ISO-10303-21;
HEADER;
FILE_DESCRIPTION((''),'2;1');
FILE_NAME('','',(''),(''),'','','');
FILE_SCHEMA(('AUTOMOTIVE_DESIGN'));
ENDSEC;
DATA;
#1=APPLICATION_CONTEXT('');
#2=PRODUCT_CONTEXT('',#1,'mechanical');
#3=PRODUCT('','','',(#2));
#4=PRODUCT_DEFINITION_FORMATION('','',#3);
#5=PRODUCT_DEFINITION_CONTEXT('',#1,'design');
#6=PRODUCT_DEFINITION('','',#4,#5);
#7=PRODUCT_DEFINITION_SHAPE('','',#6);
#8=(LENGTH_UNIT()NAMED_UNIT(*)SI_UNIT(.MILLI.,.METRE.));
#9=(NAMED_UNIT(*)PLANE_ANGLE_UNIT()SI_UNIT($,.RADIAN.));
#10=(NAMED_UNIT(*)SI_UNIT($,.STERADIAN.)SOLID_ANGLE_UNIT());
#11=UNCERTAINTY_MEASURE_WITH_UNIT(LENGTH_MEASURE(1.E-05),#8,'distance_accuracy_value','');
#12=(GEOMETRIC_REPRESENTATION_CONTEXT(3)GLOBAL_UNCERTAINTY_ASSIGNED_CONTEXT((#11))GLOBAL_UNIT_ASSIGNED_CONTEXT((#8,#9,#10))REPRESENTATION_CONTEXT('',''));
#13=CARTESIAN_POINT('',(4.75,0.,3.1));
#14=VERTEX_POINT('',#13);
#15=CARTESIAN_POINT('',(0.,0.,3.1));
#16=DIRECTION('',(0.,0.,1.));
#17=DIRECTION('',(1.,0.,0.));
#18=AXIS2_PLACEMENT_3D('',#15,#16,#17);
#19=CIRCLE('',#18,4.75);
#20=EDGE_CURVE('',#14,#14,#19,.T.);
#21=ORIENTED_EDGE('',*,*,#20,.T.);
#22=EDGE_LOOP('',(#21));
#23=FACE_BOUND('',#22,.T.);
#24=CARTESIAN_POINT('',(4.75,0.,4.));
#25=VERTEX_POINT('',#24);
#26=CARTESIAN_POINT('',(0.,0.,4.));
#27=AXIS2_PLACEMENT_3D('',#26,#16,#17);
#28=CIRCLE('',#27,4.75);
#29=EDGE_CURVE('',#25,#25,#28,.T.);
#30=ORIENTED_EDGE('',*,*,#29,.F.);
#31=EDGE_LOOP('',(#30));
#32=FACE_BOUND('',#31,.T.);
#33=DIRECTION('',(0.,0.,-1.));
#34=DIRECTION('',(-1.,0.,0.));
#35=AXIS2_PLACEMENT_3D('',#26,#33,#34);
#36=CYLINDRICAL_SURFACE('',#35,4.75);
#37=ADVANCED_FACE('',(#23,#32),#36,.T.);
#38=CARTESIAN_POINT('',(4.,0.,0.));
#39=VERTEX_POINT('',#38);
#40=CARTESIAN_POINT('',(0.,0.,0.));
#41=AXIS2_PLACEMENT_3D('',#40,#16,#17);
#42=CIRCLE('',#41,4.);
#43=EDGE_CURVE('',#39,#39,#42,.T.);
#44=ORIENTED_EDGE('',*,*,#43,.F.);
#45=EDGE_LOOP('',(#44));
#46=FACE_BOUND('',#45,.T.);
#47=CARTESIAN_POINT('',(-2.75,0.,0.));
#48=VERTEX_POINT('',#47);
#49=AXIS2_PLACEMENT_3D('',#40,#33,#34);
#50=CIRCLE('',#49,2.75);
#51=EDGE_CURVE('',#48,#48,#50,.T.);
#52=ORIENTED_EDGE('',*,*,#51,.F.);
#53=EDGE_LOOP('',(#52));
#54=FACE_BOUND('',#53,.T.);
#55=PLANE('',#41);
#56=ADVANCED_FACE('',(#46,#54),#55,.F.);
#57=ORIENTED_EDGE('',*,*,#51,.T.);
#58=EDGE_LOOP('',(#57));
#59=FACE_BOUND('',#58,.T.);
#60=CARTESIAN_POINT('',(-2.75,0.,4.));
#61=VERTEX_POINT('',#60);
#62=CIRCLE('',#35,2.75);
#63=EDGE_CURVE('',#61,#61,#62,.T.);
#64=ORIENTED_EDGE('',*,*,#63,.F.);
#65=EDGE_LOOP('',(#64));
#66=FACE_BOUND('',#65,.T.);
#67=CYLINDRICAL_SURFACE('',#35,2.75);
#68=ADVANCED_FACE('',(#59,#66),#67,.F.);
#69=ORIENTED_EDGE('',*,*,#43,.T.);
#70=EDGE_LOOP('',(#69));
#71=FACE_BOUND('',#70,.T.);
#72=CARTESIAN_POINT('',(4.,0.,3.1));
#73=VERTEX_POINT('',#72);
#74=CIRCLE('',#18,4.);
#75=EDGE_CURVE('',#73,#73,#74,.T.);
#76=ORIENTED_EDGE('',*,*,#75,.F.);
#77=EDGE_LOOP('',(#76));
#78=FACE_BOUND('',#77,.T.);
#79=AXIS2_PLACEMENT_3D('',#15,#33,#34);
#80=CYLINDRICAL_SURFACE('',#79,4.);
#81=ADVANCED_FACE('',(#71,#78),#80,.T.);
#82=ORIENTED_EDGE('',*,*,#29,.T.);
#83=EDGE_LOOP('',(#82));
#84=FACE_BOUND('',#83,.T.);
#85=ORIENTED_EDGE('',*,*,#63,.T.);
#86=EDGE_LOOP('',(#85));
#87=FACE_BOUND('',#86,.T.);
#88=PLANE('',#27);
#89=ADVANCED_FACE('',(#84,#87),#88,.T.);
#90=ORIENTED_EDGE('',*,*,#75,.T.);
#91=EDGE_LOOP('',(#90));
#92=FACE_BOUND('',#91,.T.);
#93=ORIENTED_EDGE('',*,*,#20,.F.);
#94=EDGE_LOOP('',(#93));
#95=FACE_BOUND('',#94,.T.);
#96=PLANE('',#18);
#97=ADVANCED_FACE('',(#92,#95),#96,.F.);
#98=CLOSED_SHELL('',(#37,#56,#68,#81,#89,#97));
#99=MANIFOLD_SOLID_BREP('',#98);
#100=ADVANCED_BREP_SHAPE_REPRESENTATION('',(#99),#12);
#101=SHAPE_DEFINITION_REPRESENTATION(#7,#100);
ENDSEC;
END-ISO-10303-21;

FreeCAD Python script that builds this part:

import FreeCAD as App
import Part
import Sketcher

V = App.Vector
Q = App.Units.Quantity

doc = App.newDocument("Part")
body = doc.addObject("PartDesign::Body", "Body")

# Sketch on XY plane
sketch1 = body.newObject("Sketcher::SketchObject", "Sketch")
sketch1.AttachmentSupport = (doc.getObject("XY_Plane"), [""])
sketch1.MapMode = "FlatFace"
sketch1.addGeometry(Part.Circle(V(0, 0, 0), V(0, 0, 1), 4), False)
sketch1.addConstraint([
    Sketcher.Constraint("Coincident", 0, 3, -1, 1),
    Sketcher.Constraint("Diameter", 0, Q("8 mm")),
])
pad1 = body.newObject("PartDesign::Pad", "Pad")
pad1.Profile = sketch1
pad1.Length = 3.1

# Sketch on XY plane
sketch2 = body.newObject("Sketcher::SketchObject", "Sketch001")
sketch2.AttachmentSupport = (doc.getObject("XY_Plane"), [""])
sketch2.MapMode = "FlatFace"
sketch2.AttachmentOffset = App.Placement(V(0, 0, 3.1), App.Rotation())
sketch2.addGeometry(Part.Circle(V(0, 0, 0), V(0, 0, 1), 4.8), False)
sketch2.addConstraint([
    Sketcher.Constraint("Coincident", 0, 3, -1, 1),
    Sketcher.Constraint("Diameter", 0, Q("9.5 mm")),
])
pad2 = body.newObject("PartDesign::Pad", "Pad001")
pad2.Profile = sketch2
pad2.Length = 0.9

# Sketch on XY plane
sketch3 = body.newObject("Sketcher::SketchObject", "Sketch002")
sketch3.AttachmentSupport = (doc.getObject("XY_Plane"), [""])
sketch3.MapMode = "FlatFace"
sketch3.addGeometry(Part.Circle(V(0, 0, 0), V(0, 0, 1), 2.8), False)
sketch3.addConstraint([
    Sketcher.Constraint("Coincident", 0, 3, -1, 1),
    Sketcher.Constraint("Diameter", 0, Q("5.5 mm")),
])
pocket1 = body.newObject("PartDesign::Pocket", "Pocket")
pocket1.Profile = sketch3
pocket1.Type = "ThroughAll"
pocket1.Reversed = True

doc.recompute()
